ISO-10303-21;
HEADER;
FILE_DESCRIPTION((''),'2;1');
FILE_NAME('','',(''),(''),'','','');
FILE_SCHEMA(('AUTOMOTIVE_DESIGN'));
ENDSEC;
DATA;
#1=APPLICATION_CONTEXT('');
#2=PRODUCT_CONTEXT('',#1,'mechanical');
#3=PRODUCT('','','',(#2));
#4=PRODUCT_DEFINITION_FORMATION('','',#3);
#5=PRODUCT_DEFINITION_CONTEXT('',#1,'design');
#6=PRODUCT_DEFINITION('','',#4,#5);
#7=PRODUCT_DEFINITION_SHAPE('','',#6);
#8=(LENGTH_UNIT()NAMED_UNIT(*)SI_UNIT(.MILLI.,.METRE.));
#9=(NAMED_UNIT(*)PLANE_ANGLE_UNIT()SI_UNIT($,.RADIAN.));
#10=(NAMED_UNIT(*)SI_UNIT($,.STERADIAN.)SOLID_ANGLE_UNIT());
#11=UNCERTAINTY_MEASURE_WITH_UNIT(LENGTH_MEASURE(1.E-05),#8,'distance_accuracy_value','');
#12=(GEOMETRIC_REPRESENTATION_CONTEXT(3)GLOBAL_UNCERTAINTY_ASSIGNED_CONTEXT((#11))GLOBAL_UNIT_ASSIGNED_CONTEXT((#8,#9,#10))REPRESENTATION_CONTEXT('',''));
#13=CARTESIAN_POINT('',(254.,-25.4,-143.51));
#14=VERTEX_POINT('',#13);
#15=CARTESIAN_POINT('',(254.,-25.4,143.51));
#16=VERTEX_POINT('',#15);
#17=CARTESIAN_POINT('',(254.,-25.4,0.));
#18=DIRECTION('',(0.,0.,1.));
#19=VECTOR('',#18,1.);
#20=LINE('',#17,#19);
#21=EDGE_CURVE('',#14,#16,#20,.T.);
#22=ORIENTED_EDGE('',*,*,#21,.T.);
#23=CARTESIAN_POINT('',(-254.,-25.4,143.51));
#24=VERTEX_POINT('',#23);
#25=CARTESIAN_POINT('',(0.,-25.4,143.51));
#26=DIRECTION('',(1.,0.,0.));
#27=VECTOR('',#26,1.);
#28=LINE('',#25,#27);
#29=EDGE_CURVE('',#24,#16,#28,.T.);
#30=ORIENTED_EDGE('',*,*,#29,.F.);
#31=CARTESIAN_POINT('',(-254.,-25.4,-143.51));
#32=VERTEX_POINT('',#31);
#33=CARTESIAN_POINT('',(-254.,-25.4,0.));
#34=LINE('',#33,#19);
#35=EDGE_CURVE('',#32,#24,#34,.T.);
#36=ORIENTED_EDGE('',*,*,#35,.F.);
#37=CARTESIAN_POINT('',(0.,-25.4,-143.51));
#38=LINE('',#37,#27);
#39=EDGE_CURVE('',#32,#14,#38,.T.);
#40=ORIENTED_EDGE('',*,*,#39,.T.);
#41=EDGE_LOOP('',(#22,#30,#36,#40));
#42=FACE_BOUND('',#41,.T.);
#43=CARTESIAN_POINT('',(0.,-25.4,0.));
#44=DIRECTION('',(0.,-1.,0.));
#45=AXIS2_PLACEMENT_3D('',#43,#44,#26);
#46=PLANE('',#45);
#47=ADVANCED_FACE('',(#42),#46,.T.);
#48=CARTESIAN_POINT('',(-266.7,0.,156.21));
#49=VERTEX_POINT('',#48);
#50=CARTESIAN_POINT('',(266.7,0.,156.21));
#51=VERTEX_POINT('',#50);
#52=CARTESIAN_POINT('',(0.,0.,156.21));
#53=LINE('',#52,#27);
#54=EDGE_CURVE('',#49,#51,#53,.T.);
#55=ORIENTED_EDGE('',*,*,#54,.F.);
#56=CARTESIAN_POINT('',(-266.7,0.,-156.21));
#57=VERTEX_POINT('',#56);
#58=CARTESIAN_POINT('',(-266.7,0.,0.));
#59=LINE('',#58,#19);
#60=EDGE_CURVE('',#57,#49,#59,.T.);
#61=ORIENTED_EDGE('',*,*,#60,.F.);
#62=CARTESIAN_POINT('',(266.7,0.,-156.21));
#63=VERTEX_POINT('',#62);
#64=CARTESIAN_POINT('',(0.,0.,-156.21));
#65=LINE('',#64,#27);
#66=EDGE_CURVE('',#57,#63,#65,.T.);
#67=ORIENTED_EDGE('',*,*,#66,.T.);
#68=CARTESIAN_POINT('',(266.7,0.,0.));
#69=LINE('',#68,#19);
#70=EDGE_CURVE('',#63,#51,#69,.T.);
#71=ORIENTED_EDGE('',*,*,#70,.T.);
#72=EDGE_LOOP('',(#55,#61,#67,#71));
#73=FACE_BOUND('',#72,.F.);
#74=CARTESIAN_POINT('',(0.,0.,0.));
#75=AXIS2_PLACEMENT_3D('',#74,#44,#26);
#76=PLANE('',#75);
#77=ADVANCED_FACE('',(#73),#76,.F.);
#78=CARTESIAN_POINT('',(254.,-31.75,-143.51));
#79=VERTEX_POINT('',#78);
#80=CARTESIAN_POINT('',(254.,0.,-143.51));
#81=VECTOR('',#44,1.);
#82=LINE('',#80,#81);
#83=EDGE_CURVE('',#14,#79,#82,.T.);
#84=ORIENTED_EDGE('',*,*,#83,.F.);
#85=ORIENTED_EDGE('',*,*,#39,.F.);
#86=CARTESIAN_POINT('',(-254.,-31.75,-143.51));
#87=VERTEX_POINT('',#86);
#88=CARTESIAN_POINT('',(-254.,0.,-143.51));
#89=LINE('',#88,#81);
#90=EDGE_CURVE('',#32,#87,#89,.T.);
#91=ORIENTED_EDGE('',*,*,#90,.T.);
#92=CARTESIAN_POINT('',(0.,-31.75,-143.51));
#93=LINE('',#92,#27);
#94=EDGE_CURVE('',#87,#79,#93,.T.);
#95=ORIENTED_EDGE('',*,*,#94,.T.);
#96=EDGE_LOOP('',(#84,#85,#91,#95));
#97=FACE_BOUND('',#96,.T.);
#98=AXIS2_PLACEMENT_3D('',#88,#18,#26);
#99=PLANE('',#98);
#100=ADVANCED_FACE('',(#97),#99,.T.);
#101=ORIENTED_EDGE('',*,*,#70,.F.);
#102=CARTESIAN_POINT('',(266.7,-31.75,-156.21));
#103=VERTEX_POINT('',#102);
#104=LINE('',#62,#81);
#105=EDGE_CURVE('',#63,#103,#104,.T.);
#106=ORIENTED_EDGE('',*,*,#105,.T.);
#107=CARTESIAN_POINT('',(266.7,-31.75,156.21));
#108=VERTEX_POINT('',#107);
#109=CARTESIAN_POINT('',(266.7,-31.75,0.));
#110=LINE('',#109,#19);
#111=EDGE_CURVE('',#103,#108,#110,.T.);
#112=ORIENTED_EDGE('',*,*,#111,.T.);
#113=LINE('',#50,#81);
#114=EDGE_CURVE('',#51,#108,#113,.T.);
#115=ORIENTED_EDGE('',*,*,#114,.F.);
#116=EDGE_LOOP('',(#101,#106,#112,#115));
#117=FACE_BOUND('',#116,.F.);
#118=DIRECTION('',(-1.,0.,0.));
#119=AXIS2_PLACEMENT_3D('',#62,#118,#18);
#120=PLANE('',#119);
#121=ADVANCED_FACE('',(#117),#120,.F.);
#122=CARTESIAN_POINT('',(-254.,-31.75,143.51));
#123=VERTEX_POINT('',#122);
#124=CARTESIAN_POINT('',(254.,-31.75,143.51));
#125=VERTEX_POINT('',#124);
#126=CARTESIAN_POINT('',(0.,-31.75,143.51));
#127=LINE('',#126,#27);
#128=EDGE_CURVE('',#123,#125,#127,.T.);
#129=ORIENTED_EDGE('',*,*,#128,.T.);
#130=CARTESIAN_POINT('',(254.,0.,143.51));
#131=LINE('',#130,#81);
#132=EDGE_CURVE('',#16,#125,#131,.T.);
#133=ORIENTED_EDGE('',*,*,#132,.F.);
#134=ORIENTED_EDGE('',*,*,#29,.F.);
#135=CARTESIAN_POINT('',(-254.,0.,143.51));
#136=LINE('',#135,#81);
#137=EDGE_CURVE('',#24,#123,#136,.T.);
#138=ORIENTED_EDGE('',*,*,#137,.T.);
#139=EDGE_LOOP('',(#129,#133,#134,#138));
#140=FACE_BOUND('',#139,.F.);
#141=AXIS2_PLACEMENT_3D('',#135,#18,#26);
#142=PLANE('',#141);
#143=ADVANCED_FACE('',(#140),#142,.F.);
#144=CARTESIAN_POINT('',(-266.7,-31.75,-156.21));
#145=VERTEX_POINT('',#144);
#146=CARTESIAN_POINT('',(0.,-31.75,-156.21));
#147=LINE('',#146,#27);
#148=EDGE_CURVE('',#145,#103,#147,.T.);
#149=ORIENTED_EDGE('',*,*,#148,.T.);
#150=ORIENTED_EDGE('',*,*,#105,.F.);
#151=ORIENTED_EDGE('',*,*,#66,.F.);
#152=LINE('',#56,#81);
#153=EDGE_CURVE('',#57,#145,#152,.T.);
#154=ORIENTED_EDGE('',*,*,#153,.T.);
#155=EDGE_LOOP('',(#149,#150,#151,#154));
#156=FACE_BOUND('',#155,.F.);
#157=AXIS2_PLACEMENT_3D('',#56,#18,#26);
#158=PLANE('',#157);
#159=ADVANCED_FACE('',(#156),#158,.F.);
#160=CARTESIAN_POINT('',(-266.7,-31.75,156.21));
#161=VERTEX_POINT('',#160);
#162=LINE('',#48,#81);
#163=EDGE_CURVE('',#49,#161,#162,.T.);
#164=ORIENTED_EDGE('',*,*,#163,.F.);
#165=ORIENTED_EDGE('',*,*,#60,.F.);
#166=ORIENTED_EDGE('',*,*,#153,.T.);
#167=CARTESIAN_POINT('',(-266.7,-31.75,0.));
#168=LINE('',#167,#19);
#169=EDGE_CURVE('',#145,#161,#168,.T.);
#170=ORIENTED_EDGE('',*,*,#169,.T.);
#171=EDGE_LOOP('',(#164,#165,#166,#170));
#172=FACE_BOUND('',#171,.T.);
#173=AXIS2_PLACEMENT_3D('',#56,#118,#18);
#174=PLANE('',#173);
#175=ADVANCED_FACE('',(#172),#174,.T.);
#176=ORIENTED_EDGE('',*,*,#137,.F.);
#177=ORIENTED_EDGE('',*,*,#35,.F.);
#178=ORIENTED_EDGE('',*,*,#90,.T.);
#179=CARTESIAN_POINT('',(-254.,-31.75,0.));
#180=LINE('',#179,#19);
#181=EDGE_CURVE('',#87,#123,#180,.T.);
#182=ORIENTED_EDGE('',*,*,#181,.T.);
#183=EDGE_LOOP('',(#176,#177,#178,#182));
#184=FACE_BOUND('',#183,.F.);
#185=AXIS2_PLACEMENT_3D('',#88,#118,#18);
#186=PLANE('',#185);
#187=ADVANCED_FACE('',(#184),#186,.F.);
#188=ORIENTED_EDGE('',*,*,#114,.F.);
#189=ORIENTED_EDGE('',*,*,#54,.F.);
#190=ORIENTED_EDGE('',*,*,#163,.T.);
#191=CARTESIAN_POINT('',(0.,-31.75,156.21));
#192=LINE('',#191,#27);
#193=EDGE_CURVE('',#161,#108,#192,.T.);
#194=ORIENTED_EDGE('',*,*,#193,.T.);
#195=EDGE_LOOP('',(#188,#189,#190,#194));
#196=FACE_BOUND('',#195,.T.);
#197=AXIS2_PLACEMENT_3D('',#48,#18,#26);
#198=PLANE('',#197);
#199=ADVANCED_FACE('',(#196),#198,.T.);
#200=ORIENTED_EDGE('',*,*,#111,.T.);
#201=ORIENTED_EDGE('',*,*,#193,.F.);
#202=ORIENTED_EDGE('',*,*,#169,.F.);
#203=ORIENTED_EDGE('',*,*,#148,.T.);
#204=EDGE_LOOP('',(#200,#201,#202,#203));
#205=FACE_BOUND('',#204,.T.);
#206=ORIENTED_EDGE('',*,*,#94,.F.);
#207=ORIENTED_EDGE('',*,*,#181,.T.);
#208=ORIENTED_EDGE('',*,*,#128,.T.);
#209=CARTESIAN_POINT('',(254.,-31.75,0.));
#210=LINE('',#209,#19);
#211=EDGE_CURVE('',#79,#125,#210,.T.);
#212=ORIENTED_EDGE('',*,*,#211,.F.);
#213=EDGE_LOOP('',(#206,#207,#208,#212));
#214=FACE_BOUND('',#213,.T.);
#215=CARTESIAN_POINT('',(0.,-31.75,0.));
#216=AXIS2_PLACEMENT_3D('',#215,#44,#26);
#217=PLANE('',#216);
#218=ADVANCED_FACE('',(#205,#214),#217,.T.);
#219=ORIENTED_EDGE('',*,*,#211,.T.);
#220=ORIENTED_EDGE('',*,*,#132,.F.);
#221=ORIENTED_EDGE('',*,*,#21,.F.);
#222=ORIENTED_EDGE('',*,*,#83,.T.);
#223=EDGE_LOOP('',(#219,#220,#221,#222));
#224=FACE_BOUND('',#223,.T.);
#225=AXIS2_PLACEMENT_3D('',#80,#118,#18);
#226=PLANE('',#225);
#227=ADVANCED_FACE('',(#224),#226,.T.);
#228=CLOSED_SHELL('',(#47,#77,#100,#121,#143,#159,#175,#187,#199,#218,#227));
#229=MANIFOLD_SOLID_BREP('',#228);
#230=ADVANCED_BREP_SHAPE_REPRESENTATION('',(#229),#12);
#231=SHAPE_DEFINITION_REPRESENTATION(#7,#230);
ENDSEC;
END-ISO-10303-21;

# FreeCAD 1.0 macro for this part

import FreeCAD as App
import Part
import Sketcher
Q = App.Units.Quantity


def add_polygon(sketch, points):
    """Adds a closed chain of lines whose ends are joined by coincident constraints."""
    first, n = sketch.GeometryCount, len(points)
    for a, b in zip(points, points[1:] + points[:1]):
        sketch.addGeometry(Part.LineSegment(App.Vector(*a, 0), App.Vector(*b, 0)), False)
    for i in range(n):
        sketch.addConstraint(Sketcher.Constraint("Coincident", first + i, 2, first + (i + 1) % n, 1))

doc = App.newDocument("Part")
params = doc.addObject("Spreadsheet::Sheet", "Params")
for row, (alias, value) in enumerate([
    ("sketch1_width", "20 in"),
    ("sketch1_height", "11.3 in"),
    ("pad1_length", "1 in"),
    ("sketch2_width", "21 in"),
    ("sketch2_width2", "20 in"),
    ("sketch2_height", "12.3 in"),
    ("sketch2_height2", "11.3 in"),
    ("pad2_length", "1.25 in"),
], start=1):
    params.set(f"A{row}", alias)
    params.set(f"B{row}", "=" + value)
    params.setAlias(f"B{row}", alias)

body = doc.addObject("PartDesign::Body", "Body")

sketch1 = body.newObject("Sketcher::SketchObject", "Sketch")
sketch1.AttachmentSupport = (doc.getObject("XZ_Plane"), [""])
sketch1.MapMode = "FlatFace"
add_polygon(sketch1, [(-254, 144), (-254, -144), (254, -144), (254, 144)])
sketch1.addConstraint(Sketcher.Constraint("Vertical", 0))
sketch1.addConstraint(Sketcher.Constraint("Horizontal", 1))
sketch1.addConstraint(Sketcher.Constraint("Vertical", 2))
sketch1.addConstraint(Sketcher.Constraint("Horizontal", 3))
sketch1.addConstraint(Sketcher.Constraint("Symmetric", 0, 2, 2, 2, -1, 1))
sketch1.addConstraint(Sketcher.Constraint("DistanceX", 1, 1, 1, 2, Q("20 in")))
sketch1.addConstraint(Sketcher.Constraint("DistanceY", 0, 2, 0, 1, Q("11.3 in")))
sketch1.setExpression("Constraints[9]", "Params.sketch1_width")
sketch1.setExpression("Constraints[10]", "Params.sketch1_height")
pad1 = body.newObject("PartDesign::Pad", "Pad")
pad1.Profile = sketch1
pad1.setExpression("Length", "Params.pad1_length")

sketch2 = body.newObject("Sketcher::SketchObject", "Sketch001")
sketch2.AttachmentSupport = (doc.getObject("XZ_Plane"), [""])
sketch2.MapMode = "FlatFace"
add_polygon(sketch2, [(-267, 156), (-267, -156), (267, -156), (267, 156)])
add_polygon(sketch2, [(254, -144), (-254, -144), (-254, 144), (254, 144)])
sketch2.addConstraint(Sketcher.Constraint("Vertical", 0))
sketch2.addConstraint(Sketcher.Constraint("Horizontal", 1))
sketch2.addConstraint(Sketcher.Constraint("Vertical", 2))
sketch2.addConstraint(Sketcher.Constraint("Horizontal", 3))
sketch2.addConstraint(Sketcher.Constraint("Horizontal", 4))
sketch2.addConstraint(Sketcher.Constraint("Vertical", 5))
sketch2.addConstraint(Sketcher.Constraint("Horizontal", 6))
sketch2.addConstraint(Sketcher.Constraint("Vertical", 7))
sketch2.addConstraint(Sketcher.Constraint("Symmetric", 0, 2, 2, 2, -1, 1))
sketch2.addConstraint(Sketcher.Constraint("Symmetric", 4, 2, 6, 2, -1, 1))
sketch2.addConstraint(Sketcher.Constraint("DistanceX", 1, 1, 1, 2, Q("21 in")))
sketch2.addConstraint(Sketcher.Constraint("DistanceX", 4, 2, 4, 1, Q("20 in")))
sketch2.addConstraint(Sketcher.Constraint("DistanceY", 0, 2, 0, 1, Q("12.3 in")))
sketch2.addConstraint(Sketcher.Constraint("DistanceY", 5, 1, 5, 2, Q("11.3 in")))
sketch2.setExpression("Constraints[18]", "Params.sketch2_width")
sketch2.setExpression("Constraints[19]", "Params.sketch2_width2")
sketch2.setExpression("Constraints[20]", "Params.sketch2_height")
sketch2.setExpression("Constraints[21]", "Params.sketch2_height2")
pad2 = body.newObject("PartDesign::Pad", "Pad001")
pad2.Profile = sketch2
pad2.setExpression("Length", "Params.pad2_length")

doc.recompute()
